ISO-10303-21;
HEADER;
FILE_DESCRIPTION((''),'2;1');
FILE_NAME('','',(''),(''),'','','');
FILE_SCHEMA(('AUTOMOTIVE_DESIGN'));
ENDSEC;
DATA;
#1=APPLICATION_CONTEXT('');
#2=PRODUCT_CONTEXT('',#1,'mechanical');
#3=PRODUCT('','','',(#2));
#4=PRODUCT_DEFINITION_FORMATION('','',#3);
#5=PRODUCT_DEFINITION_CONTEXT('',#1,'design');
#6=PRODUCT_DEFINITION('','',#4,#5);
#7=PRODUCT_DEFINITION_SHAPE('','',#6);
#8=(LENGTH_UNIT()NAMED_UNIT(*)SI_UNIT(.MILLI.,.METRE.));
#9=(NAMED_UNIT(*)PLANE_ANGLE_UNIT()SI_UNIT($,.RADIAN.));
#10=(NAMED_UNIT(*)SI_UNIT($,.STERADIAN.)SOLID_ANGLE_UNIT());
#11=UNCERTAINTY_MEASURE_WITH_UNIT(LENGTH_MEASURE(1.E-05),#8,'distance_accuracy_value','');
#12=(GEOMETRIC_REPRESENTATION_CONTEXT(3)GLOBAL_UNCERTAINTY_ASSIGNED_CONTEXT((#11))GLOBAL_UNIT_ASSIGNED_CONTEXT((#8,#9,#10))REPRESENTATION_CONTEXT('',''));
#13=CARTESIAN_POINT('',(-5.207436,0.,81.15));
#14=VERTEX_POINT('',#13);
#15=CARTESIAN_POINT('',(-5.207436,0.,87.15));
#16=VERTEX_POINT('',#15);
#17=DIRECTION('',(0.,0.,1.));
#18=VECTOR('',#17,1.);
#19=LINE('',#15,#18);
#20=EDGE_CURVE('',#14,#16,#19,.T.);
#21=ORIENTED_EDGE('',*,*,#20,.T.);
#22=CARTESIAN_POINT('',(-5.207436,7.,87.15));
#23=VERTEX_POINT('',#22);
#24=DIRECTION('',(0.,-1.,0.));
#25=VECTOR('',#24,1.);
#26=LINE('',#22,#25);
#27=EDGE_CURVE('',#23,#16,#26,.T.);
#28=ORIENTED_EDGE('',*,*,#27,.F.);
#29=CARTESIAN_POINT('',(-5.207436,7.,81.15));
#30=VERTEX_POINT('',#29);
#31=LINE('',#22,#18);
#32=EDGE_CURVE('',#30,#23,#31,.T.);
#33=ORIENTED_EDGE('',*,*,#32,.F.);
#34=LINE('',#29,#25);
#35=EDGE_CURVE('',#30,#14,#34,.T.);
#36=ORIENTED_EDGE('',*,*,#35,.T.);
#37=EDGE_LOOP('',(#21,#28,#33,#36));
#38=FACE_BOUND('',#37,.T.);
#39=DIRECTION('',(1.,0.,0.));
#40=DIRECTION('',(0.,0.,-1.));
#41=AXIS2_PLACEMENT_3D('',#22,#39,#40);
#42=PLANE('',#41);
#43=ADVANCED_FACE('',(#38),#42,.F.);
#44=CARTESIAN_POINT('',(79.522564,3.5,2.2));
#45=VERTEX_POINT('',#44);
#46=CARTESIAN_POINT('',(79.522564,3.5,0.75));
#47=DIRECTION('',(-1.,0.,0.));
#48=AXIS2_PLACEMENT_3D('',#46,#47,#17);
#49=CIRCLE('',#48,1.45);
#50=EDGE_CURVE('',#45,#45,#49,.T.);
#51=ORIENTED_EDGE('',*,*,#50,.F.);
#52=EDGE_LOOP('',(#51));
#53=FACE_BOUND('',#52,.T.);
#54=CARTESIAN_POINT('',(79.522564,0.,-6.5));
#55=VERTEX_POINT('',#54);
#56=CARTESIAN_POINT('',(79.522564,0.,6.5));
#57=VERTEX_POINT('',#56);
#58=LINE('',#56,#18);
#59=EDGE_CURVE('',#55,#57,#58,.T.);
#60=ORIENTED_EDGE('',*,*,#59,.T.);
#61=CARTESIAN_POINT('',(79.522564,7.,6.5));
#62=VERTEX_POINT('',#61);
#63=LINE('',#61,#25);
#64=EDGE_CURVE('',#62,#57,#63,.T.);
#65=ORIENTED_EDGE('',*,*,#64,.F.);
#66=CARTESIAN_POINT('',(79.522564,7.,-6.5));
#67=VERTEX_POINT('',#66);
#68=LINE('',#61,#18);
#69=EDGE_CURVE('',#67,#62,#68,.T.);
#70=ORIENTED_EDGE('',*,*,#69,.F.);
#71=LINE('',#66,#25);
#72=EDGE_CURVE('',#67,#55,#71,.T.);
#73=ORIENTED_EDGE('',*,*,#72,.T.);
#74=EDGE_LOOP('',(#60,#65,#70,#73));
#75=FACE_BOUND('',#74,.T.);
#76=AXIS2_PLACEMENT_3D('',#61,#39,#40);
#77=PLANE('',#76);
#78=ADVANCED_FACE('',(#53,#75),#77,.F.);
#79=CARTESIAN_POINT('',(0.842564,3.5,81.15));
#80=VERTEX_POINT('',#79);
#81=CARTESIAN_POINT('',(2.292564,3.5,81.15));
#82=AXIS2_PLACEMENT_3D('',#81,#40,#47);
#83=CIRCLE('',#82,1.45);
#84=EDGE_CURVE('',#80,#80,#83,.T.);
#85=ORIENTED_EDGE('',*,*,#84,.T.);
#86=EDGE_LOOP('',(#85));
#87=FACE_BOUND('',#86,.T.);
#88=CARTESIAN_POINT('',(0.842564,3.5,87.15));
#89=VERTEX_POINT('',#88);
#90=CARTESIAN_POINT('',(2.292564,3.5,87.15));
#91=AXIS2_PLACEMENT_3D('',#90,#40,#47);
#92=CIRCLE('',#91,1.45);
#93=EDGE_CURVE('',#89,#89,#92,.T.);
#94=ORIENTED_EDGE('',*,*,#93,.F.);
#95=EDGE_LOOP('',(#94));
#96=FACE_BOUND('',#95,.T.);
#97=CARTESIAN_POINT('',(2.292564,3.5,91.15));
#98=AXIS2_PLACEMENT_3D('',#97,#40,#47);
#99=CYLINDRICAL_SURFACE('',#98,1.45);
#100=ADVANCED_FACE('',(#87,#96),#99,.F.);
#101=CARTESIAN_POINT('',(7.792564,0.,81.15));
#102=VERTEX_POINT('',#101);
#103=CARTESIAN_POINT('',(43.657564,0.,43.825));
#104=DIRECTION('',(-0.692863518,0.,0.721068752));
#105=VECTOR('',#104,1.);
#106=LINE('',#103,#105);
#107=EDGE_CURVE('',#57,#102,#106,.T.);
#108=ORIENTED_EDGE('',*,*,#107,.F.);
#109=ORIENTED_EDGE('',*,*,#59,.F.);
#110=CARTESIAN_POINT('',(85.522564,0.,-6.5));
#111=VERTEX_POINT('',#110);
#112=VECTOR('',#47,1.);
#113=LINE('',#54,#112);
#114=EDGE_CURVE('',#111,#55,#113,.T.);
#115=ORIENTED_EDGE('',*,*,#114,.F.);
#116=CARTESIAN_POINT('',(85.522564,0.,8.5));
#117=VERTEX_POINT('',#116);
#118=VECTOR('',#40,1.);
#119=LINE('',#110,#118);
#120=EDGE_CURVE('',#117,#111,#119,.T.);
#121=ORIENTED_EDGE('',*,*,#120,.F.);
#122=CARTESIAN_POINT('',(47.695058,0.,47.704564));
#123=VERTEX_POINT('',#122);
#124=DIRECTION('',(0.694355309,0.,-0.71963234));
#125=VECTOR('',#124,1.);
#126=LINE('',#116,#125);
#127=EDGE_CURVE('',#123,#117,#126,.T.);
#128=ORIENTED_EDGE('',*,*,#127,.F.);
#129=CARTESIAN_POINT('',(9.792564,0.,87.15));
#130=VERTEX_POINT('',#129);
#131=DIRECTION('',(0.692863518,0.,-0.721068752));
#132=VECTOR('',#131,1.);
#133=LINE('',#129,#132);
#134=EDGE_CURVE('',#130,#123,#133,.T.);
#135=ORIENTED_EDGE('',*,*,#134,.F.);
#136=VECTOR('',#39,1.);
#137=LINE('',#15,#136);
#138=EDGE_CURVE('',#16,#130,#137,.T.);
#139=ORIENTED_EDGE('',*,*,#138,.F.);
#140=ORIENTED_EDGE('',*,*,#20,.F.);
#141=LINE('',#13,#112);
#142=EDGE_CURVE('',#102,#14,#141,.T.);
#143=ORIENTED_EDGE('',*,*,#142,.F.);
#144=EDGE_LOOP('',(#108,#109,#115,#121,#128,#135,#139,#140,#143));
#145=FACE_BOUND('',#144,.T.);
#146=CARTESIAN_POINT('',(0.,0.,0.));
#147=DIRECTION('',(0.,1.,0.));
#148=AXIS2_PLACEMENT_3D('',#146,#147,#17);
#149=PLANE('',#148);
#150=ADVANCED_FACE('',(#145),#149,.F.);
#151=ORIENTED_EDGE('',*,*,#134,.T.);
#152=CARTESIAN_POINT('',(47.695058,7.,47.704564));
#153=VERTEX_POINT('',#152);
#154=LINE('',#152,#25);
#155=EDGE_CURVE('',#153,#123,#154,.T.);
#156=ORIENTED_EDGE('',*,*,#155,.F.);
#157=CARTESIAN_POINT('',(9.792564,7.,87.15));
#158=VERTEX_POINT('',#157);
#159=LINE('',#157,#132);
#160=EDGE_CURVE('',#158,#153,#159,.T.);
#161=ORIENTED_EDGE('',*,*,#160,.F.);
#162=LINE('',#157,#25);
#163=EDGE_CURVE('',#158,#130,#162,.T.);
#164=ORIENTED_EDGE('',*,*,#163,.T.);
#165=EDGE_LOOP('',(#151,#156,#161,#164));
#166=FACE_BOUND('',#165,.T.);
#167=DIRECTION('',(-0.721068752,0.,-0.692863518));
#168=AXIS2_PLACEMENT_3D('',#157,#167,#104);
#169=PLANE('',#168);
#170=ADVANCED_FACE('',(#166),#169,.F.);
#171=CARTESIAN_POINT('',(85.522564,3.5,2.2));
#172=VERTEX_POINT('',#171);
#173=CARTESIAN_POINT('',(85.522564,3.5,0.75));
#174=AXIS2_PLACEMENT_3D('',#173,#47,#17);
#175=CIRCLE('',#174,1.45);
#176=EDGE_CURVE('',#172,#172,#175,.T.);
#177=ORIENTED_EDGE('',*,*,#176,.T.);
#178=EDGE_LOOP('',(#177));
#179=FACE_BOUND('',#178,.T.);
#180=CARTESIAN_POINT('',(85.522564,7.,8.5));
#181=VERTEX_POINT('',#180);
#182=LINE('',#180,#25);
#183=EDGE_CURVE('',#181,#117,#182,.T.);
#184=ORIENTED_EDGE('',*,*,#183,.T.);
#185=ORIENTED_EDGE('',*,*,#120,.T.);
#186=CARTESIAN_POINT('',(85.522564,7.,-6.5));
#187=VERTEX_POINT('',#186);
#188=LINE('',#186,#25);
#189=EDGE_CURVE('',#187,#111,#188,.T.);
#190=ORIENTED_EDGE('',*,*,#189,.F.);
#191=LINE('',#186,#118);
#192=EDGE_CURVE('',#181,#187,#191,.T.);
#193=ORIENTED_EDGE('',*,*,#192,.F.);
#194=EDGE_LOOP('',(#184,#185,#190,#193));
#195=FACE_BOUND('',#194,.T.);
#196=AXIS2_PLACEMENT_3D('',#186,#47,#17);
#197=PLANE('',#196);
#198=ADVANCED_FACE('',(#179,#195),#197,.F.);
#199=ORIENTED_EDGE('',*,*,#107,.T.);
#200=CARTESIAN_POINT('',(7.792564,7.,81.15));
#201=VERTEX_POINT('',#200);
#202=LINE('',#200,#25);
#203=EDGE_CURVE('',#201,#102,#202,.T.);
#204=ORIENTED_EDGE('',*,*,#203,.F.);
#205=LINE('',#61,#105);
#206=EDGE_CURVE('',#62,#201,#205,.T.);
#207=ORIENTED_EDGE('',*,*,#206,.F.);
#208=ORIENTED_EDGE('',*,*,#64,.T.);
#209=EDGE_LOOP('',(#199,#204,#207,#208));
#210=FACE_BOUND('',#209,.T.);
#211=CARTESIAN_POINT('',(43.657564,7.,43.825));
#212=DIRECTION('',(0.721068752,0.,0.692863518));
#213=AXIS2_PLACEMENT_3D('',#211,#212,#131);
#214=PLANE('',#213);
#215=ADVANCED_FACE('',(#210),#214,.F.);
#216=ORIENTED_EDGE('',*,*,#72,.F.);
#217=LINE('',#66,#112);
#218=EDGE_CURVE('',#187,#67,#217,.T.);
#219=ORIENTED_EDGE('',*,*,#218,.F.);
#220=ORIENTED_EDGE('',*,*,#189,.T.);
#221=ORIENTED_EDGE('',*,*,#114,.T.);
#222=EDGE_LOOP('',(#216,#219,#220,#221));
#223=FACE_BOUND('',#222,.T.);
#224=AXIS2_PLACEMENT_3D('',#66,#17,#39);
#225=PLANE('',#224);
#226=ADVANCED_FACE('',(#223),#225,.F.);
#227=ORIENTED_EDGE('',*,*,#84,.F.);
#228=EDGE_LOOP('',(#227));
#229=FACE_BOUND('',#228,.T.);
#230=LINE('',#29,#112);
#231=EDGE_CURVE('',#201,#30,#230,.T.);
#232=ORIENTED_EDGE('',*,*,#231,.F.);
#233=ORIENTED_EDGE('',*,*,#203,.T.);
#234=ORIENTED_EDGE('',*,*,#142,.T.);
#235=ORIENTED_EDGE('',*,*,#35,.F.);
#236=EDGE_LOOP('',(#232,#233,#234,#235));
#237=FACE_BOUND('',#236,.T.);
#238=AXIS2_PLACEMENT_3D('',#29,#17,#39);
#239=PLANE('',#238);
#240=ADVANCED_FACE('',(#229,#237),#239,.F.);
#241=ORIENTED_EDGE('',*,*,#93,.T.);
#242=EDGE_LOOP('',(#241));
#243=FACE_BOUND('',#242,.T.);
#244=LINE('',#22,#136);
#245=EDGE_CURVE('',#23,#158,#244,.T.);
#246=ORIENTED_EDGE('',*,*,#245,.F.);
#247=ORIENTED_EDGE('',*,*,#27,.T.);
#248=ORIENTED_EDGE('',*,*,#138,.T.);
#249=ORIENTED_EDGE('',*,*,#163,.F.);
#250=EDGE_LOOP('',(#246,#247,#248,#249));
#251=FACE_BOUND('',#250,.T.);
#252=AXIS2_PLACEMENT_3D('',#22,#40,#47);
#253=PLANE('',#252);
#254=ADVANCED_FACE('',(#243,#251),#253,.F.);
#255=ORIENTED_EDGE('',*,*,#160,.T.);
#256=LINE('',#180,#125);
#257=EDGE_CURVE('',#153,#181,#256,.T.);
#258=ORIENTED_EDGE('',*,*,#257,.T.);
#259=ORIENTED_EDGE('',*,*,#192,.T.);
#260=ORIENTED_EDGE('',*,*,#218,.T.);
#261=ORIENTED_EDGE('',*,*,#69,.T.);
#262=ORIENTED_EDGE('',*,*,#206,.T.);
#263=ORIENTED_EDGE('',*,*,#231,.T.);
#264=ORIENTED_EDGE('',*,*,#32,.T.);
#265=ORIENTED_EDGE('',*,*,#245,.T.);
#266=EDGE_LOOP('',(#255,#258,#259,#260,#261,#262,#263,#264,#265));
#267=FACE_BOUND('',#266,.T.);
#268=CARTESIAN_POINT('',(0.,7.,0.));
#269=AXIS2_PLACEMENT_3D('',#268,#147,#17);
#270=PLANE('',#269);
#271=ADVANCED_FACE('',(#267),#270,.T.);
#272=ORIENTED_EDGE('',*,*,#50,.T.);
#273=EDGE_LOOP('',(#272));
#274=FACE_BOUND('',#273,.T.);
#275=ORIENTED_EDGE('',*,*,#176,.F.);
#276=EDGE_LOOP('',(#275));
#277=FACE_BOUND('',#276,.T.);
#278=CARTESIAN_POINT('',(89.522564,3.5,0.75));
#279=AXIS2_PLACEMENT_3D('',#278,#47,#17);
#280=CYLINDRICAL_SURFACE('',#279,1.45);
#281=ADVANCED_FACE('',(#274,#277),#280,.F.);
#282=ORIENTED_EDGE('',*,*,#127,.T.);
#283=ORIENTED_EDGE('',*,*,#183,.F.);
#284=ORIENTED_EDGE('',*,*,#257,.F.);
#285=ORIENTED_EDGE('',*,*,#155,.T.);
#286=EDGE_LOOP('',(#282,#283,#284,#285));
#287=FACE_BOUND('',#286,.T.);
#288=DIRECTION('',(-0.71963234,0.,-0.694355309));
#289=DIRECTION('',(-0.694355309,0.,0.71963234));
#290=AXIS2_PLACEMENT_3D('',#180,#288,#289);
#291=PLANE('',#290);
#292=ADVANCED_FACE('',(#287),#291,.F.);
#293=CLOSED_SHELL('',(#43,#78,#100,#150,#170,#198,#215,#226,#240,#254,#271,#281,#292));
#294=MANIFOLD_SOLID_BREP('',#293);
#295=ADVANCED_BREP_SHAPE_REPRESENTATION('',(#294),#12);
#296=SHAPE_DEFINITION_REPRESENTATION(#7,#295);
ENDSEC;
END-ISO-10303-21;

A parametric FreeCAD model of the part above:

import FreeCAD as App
import Part
import Sketcher

V = App.Vector
Q = App.Units.Quantity

doc = App.newDocument("Part")
body = doc.addObject("PartDesign::Body", "Body")

# Sketch on XZ plane
sketch1 = body.newObject("Sketcher::SketchObject", "Sketch")
sketch1.AttachmentSupport = (doc.getObject("XZ_Plane"), [""])
sketch1.MapMode = "FlatFace"
sketch1.addGeometry(Part.LineSegment(V(85.522564, 8.5, 0), V(85.522564, -6.5, 0)), False)
sketch1.addGeometry(Part.LineSegment(V(85.522564, -6.5, 0), V(79.522564, -6.5, 0)), False)
sketch1.addGeometry(Part.LineSegment(V(79.522564, -6.5, 0), V(79.522564, 6.5, 0)), False)
sketch1.addGeometry(Part.LineSegment(V(79.522564, 6.5, 0), V(7.792564, 81.15, 0)), False)
sketch1.addGeometry(Part.LineSegment(V(7.792564, 81.15, 0), V(-5.207436, 81.15, 0)), False)
sketch1.addGeometry(Part.LineSegment(V(-5.207436, 81.15, 0), V(-5.207436, 87.15, 0)), False)
sketch1.addGeometry(Part.LineSegment(V(-5.207436, 87.15, 0), V(9.792564, 87.15, 0)), False)
sketch1.addGeometry(Part.LineSegment(V(9.792564, 87.15, 0), V(47.695058, 47.704564, 0)), False)
sketch1.addGeometry(Part.LineSegment(V(47.695058, 47.704564, 0), V(85.522564, 8.5, 0)), False)
sketch1.addConstraint(Sketcher.Constraint("Coincident", 0, 2, 1, 1))
sketch1.addConstraint(Sketcher.Constraint("Coincident", 1, 2, 2, 1))
sketch1.addConstraint(Sketcher.Constraint("Coincident", 2, 2, 3, 1))
sketch1.addConstraint(Sketcher.Constraint("Coincident", 3, 2, 4, 1))
sketch1.addConstraint(Sketcher.Constraint("Coincident", 4, 2, 5, 1))
sketch1.addConstraint(Sketcher.Constraint("Coincident", 5, 2, 6, 1))
sketch1.addConstraint(Sketcher.Constraint("Coincident", 6, 2, 7, 1))
sketch1.addConstraint(Sketcher.Constraint("Coincident", 7, 2, 8, 1))
sketch1.addConstraint(Sketcher.Constraint("Coincident", 8, 2, 0, 1))
sketch1.addConstraint(Sketcher.Constraint("Vertical", 0))
sketch1.addConstraint(Sketcher.Constraint("Horizontal", 1))
sketch1.addConstraint(Sketcher.Constraint("Vertical", 2))
sketch1.addConstraint(Sketcher.Constraint("Horizontal", 4))
sketch1.addConstraint(Sketcher.Constraint("Vertical", 5))
sketch1.addConstraint(Sketcher.Constraint("Horizontal", 6))
sketch1.addConstraint(Sketcher.Constraint("Parallel", 3, 7))
sketch1.addConstraint(Sketcher.Constraint("Equal", 6, 0))
sketch1.addConstraint(Sketcher.Constraint("Equal", 4, 2))
sketch1.addConstraint(Sketcher.Constraint("Equal", 1, 5))
sketch1.addConstraint(Sketcher.Constraint("DistanceX", 1, 2, 1, 1, Q("6 mm")))
sketch1.addConstraint(Sketcher.Constraint("DistanceX", 4, 2, 4, 1, Q("13 mm")))
sketch1.addConstraint(Sketcher.Constraint("DistanceX", 6, 1, 6, 2, Q("15 mm")))
sketch1.addConstraint(Sketcher.Constraint("DistanceY", 0, 2, -1, 1, Q("6.5 mm")))
sketch1.addConstraint(Sketcher.Constraint("DistanceY", -1, 1, 3, 2, Q("81.15 mm")))
sketch1.addConstraint(Sketcher.Constraint("DistanceX", 3, 2, 2, 2, Q("71.73 mm")))
sketch1.addConstraint(Sketcher.Constraint("Distance", 8, Q("54.478602 mm")))
sketch1.addConstraint(Sketcher.Constraint("DistanceX", -1, 1, 0, 2, Q("85.522564 mm")))
pad1 = body.newObject("PartDesign::Pad", "Pad")
pad1.Profile = sketch1
pad1.Length = 7
pad1.Reversed = True

# Sketch on XY plane
sketch2 = body.newObject("Sketcher::SketchObject", "Sketch001")
sketch2.AttachmentSupport = (doc.getObject("XY_Plane"), [""])
sketch2.MapMode = "FlatFace"
sketch2.AttachmentOffset = App.Placement(V(0, 0, 81.15), App.Rotation())
sketch2.addGeometry(Part.Circle(V(2.292564, 3.5, 0), V(0, 0, 1), 1.45), False)
sketch2.addConstraint(Sketcher.Constraint("Diameter", 0, Q("2.9 mm")))
sketch2.addConstraint(Sketcher.Constraint("DistanceY", -1, 1, 0, 3, Q("3.5 mm")))
sketch2.addConstraint(Sketcher.Constraint("DistanceX", -1, 1, 0, 3, Q("2.292564 mm")))
pocket1 = body.newObject("PartDesign::Pocket", "Pocket")
pocket1.Profile = sketch2
pocket1.Length = 10
pocket1.Reversed = True

# Sketch on YZ plane
sketch3 = body.newObject("Sketcher::SketchObject", "Sketch002")
sketch3.AttachmentSupport = (doc.getObject("YZ_Plane"), [""])
sketch3.MapMode = "FlatFace"
sketch3.AttachmentOffset = App.Placement(V(0, 0, 79.522564), App.Rotation())
sketch3.addGeometry(Part.Circle(V(3.5, 0.75, 0), V(0, 0, 1), 1.45), False)
sketch3.addConstraint(Sketcher.Constraint("Diameter", 0, Q("2.9 mm")))
sketch3.addConstraint(Sketcher.Constraint("DistanceX", -1, 1, 0, 3, Q("3.5 mm")))
sketch3.addConstraint(Sketcher.Constraint("DistanceY", -1, 1, 0, 3, Q("0.75 mm")))
pocket2 = body.newObject("PartDesign::Pocket", "Pocket001")
pocket2.Profile = sketch3
pocket2.Length = 10
pocket2.Reversed = True

doc.recompute()
